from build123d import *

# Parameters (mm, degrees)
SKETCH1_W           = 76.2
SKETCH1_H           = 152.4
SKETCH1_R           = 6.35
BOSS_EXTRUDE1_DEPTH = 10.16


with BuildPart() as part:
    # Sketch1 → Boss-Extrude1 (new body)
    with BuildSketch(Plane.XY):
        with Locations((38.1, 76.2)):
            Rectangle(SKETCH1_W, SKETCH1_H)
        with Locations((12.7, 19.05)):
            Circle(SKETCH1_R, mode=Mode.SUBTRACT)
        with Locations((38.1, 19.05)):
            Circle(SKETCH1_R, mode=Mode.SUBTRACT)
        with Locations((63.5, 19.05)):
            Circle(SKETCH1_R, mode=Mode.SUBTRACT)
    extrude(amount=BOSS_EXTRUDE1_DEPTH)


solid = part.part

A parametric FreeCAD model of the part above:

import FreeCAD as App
import Part
import Sketcher
from FreeCAD import Vector
Q = App.Units.Quantity

doc = App.newDocument("Part")
body = doc.addObject("PartDesign::Body", "Body")

sketch1 = body.newObject("Sketcher::SketchObject", "Sketch")
sketch1.AttachmentSupport = (doc.getObject("XY_Plane"), [""])
sketch1.MapMode = "FlatFace"
sketch1.addGeometry(Part.LineSegment(Vector(0, 152.4, 0), Vector(0, 0, 0)), False)
sketch1.addGeometry(Part.LineSegment(Vector(0, 0, 0), Vector(76.2, 0, 0)), False)
sketch1.addGeometry(Part.LineSegment(Vector(76.2, 0, 0), Vector(76.2, 152.4, 0)), False)
sketch1.addGeometry(Part.LineSegment(Vector(76.2, 152.4, 0), Vector(0, 152.4, 0)), False)
sketch1.addGeometry(Part.Circle(Vector(12.7, 19.05, 0), Vector(0, 0, 1), 6.35), False)
sketch1.addGeometry(Part.Circle(Vector(38.1, 19.05, 0), Vector(0, 0, 1), 6.35), False)
sketch1.addGeometry(Part.Circle(Vector(63.5, 19.05, 0), Vector(0, 0, 1), 6.35), False)
sketch1.addConstraint(Sketcher.Constraint("Coincident", 0, 2, 1, 1))
sketch1.addConstraint(Sketcher.Constraint("Coincident", 1, 2, 2, 1))
sketch1.addConstraint(Sketcher.Constraint("Coincident", 2, 2, 3, 1))
sketch1.addConstraint(Sketcher.Constraint("Coincident", 3, 2, 0, 1))
sketch1.addConstraint(Sketcher.Constraint("Vertical", 0))
sketch1.addConstraint(Sketcher.Constraint("Horizontal", 1))
sketch1.addConstraint(Sketcher.Constraint("Vertical", 2))
sketch1.addConstraint(Sketcher.Constraint("Horizontal", 3))
sketch1.addConstraint(Sketcher.Constraint("Coincident", 0, 2, -1, 1))
sketch1.addConstraint(Sketcher.Constraint("Equal", 4, 5))
sketch1.addConstraint(Sketcher.Constraint("Equal", 5, 6))
sketch1.addConstraint(Sketcher.Constraint("Horizontal", 4, 3, 5, 3))
sketch1.addConstraint(Sketcher.Constraint("Horizontal", 5, 3, 6, 3))
sketch1.addConstraint(Sketcher.Constraint("Diameter", 4, Q("0.5 in")))
sketch1.addConstraint(Sketcher.Constraint("DistanceX", 1, 1, 1, 2, Q("3 in")))
sketch1.addConstraint(Sketcher.Constraint("DistanceY", 0, 2, 0, 1, Q("6 in")))
sketch1.addConstraint(Sketcher.Constraint("DistanceX", 4, 3, 5, 3, Q("1 in")))
sketch1.addConstraint(Sketcher.Constraint("DistanceX", 5, 3, 6, 3, Q("1 in")))
sketch1.addConstraint(Sketcher.Constraint("DistanceX", -1, 1, 4, 3, Q("0.5 in")))
sketch1.addConstraint(Sketcher.Constraint("DistanceY", -1, 1, 4, 3, Q("0.75 in")))
pad1 = body.newObject("PartDesign::Pad", "Pad")
pad1.Profile = sketch1
pad1.Length = Q("0.4 in")

doc.recompute()
